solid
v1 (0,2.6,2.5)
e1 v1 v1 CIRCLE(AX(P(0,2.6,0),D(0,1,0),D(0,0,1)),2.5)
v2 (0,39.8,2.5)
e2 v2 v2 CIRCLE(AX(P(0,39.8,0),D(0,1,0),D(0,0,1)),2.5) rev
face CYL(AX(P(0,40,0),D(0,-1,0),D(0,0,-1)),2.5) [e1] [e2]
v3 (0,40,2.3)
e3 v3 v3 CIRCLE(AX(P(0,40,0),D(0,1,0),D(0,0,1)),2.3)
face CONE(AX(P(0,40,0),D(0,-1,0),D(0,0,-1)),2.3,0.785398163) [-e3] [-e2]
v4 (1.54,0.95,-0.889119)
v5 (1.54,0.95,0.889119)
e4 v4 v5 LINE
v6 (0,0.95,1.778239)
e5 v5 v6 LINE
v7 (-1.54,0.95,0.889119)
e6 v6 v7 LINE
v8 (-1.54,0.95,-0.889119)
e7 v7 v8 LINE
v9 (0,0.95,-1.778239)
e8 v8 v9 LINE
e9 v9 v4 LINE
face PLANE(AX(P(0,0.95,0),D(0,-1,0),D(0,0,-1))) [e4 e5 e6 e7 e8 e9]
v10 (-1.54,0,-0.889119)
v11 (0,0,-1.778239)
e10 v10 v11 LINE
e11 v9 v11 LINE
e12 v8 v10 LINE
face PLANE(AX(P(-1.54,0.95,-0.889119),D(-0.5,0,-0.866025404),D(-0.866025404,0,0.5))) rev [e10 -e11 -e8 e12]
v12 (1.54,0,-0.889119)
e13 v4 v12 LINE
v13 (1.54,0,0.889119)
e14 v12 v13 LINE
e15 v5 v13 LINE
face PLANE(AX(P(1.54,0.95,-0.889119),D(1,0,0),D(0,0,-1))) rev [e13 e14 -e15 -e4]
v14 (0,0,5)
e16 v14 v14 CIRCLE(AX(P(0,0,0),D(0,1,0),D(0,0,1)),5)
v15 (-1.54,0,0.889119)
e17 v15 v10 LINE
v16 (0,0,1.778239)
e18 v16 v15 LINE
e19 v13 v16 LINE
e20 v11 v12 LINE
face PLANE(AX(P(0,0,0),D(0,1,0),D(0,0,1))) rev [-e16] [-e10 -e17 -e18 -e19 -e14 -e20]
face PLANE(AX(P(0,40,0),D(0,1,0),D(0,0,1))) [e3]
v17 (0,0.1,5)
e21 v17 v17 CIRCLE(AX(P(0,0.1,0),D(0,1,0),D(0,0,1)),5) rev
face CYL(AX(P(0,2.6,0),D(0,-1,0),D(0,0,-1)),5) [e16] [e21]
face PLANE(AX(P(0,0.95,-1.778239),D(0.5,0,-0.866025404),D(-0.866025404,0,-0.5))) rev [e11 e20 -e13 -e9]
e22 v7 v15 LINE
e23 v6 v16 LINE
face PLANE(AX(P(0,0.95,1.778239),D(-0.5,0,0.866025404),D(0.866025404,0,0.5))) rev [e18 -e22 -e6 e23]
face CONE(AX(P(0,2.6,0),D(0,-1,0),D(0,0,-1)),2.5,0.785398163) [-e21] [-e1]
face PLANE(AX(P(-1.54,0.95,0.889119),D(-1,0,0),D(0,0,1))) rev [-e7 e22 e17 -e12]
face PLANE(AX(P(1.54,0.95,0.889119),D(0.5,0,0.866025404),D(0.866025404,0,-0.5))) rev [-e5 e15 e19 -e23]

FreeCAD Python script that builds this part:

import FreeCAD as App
import Part
import Sketcher
from FreeCAD import Vector
Q = App.Units.Quantity


def edges_at(feature, points):
    """Names of the edges that pass closest to the given points."""
    edges = feature.Shape.Edges
    near = lambda p: min(range(len(edges)), key=lambda i: edges[i].distToShape(Part.Vertex(*p))[0])
    return sorted({f"Edge{near(p) + 1}" for p in points})

doc = App.newDocument("Part")
body = doc.addObject("PartDesign::Body", "Body")

sketch1 = doc.addObject("Sketcher::SketchObject", "Sketch")
body.addObject(sketch1)
sketch1.AttachmentSupport = (doc.XZ_Plane, [""])
sketch1.MapMode = "FlatFace"
sketch1.addGeometry(Part.Circle(Vector(0, 0, 0), Vector(0, 0, 1), 5), False)
sketch1.addConstraint([
    Sketcher.Constraint("Coincident", 0, 3, -1, 1),
    Sketcher.Constraint("Diameter", 0, Q("10 mm")),
])
pad1 = doc.addObject("PartDesign::Pad", "Pad")
body.addObject(pad1)
pad1.Profile = sketch1
pad1.Length = 2.6
pad1.Reversed = True
doc.recompute()

chamfer = doc.addObject("PartDesign::Chamfer", "Chamfer")
body.addObject(chamfer)
chamfer.Base = (pad1, edges_at(pad1, [(0, 2.6, -5)]))
chamfer.Size = 2.5

sketch2 = doc.addObject("Sketcher::SketchObject", "Sketch001")
body.addObject(sketch2)
sketch2.AttachmentSupport = (doc.XZ_Plane, [""])
sketch2.MapMode = "FlatFace"
sketch2.addGeometry([
    Part.LineSegment(Vector(1.5, -0.9, 0), Vector(1.5, 0.9, 0)),
    Part.LineSegment(Vector(1.5, 0.9, 0), Vector(0, 1.8, 0)),
    Part.LineSegment(Vector(0, 1.8, 0), Vector(-1.5, 0.9, 0)),
    Part.LineSegment(Vector(-1.5, 0.9, 0), Vector(-1.5, -0.9, 0)),
    Part.LineSegment(Vector(-1.5, -0.9, 0), Vector(0, -1.8, 0)),
    Part.LineSegment(Vector(0, -1.8, 0), Vector(1.5, -0.9, 0)),
], False)
sketch2.addConstraint([
    Sketcher.Constraint("Coincident", 0, 2, 1, 1),
    Sketcher.Constraint("Coincident", 1, 2, 2, 1),
    Sketcher.Constraint("Coincident", 2, 2, 3, 1),
    Sketcher.Constraint("Coincident", 3, 2, 4, 1),
    Sketcher.Constraint("Coincident", 4, 2, 5, 1),
    Sketcher.Constraint("Coincident", 5, 2, 0, 1),
    Sketcher.Constraint("Vertical", 0),
    Sketcher.Constraint("Vertical", 3),
    Sketcher.Constraint("Symmetric", 0, 2, 3, 2, -1, 1),
    Sketcher.Constraint("Symmetric", 1, 2, 4, 2, -1, 1),
    Sketcher.Constraint("PointOnObject", 1, 2, -2),
    Sketcher.Constraint("Parallel", 2, 5),
    Sketcher.Constraint("Horizontal", 0, 2, 2, 2),
    Sketcher.Constraint("Angle", 1, Q("150 deg")),
    Sketcher.Constraint("DistanceX", -1, 1, 0, 2, Q("1.54 mm")),
    Sketcher.Constraint("DistanceY", 0, 1, 0, 2, Q("1.778239 mm")),
])
pocket1 = doc.addObject("PartDesign::Pocket", "Pocket")
body.addObject(pocket1)
pocket1.Profile = sketch2
pocket1.Length = 0.95

sketch3 = doc.addObject("Sketcher::SketchObject", "Sketch002")
body.addObject(sketch3)
sketch3.AttachmentSupport = (doc.XZ_Plane, [""])
sketch3.MapMode = "FlatFace"
sketch3.AttachmentOffset = App.Placement(Vector(0, 0, -2.6), App.Rotation())
sketch3.addGeometry(Part.Circle(Vector(0, 0, 0), Vector(0, 0, 1), 2.5), False)
sketch3.addConstraint([
    Sketcher.Constraint("Coincident", 0, 3, -1, 1),
    Sketcher.Constraint("Diameter", 0, Q("5 mm")),
])
pad2 = doc.addObject("PartDesign::Pad", "Pad001")
body.addObject(pad2)
pad2.Profile = sketch3
pad2.Length = 37.4
pad2.Reversed = True
doc.recompute()

chamfer2 = doc.addObject("PartDesign::Chamfer", "Chamfer001")
body.addObject(chamfer2)
chamfer2.Base = (pad2, edges_at(pad2, [(0, 40, -2.5)]))
chamfer2.Size = 0.2

doc.recompute()
